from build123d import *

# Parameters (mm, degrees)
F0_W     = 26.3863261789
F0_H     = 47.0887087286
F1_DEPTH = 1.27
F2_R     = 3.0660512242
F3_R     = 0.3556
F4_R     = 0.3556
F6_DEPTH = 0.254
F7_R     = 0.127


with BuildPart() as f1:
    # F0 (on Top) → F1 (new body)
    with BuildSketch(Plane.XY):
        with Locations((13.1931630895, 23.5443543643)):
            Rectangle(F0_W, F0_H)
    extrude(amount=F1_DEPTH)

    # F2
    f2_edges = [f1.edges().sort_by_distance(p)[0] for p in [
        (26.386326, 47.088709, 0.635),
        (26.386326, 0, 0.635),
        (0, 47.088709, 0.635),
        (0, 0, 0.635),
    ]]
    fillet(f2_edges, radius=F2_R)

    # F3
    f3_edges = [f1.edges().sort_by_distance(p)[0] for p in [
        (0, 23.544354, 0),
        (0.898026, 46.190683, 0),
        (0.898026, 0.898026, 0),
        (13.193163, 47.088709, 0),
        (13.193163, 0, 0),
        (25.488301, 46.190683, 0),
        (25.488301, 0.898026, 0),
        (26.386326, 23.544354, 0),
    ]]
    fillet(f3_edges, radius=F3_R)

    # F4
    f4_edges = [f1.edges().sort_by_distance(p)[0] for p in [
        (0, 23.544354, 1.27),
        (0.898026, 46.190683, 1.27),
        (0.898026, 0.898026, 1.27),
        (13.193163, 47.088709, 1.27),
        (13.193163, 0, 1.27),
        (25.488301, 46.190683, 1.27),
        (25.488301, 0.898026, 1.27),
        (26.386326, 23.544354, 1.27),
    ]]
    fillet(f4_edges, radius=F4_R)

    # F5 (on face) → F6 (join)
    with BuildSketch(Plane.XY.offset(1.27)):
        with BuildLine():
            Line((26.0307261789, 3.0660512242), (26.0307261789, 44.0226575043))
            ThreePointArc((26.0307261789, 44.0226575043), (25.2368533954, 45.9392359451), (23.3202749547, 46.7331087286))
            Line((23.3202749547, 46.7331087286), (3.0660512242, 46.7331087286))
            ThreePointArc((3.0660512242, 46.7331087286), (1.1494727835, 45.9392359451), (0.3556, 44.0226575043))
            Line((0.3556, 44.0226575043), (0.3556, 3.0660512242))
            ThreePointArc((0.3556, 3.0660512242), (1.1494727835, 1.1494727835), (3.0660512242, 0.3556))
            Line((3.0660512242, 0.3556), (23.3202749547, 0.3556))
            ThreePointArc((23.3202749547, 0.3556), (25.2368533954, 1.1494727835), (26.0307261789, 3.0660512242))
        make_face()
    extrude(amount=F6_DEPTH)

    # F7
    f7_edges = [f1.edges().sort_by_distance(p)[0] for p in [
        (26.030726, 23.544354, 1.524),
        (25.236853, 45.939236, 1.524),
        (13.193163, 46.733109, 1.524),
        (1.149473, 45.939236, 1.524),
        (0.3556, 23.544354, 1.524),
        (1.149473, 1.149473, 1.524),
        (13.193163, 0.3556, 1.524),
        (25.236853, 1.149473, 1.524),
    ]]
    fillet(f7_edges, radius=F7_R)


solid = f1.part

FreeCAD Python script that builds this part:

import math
import FreeCAD as App
import Part
import Sketcher

V = App.Vector
Q = App.Units.Quantity


def edges_at(feature, points):
    """Names of the edges that pass closest to the given points."""
    edges = feature.Shape.Edges
    near = lambda p: min(range(len(edges)), key=lambda i: edges[i].distToShape(Part.Vertex(*p))[0])
    return sorted({f"Edge{near(p) + 1}" for p in points})


def add_polygon(sketch, points):
    """Adds a closed chain of lines whose ends are joined by coincident constraints."""
    first, n = sketch.GeometryCount, len(points)
    for a, b in zip(points, points[1:] + points[:1]):
        sketch.addGeometry(Part.LineSegment(App.Vector(*a, 0), App.Vector(*b, 0)), False)
    for i in range(n):
        sketch.addConstraint(Sketcher.Constraint("Coincident", first + i, 2, first + (i + 1) % n, 1))

doc = App.newDocument("Part")
body = doc.addObject("PartDesign::Body", "Body")

sketch1 = doc.addObject("Sketcher::SketchObject", "Sketch")
body.addObject(sketch1)
sketch1.AttachmentSupport = (doc.XY_Plane, [""])
sketch1.MapMode = "FlatFace"
add_polygon(sketch1, [(0, 47), (0, 0), (26, 0), (26, 47)])
sketch1.addConstraint([
    Sketcher.Constraint("Vertical", 0),
    Sketcher.Constraint("Horizontal", 1),
    Sketcher.Constraint("Vertical", 2),
    Sketcher.Constraint("Horizontal", 3),
    Sketcher.Constraint("Coincident", 0, 2, -1, 1),
    Sketcher.Constraint("DistanceY", 0, 2, 0, 1, Q("47.088709 mm")),
    Sketcher.Constraint("DistanceX", 1, 1, 1, 2, Q("26.386326 mm")),
])
pad1 = doc.addObject("PartDesign::Pad", "Pad")
body.addObject(pad1)
pad1.Profile = sketch1
pad1.Length = Q("0.05 in")
doc.recompute()

fillet = doc.addObject("PartDesign::Fillet", "Fillet")
body.addObject(fillet)
fillet.Base = (pad1, edges_at(pad1, [
    (26.386, 47.089, 0.635),
    (26.386, 0, 0.635),
    (0, 47.089, 0.635),
    (0, 0, 0.635),
]))
fillet.Radius = 3.066051
doc.recompute()

fillet2 = doc.addObject("PartDesign::Fillet", "Fillet001")
body.addObject(fillet2)
fillet2.Base = (fillet, edges_at(fillet, [
    (0, 23.544, 0),
    (0.898, 46.191, 0),
    (0.898, 0.898, 0),
    (13.193, 47.089, 0),
    (13.193, 0, 0),
    (25.488, 46.191, 0),
    (25.488, 0.898, 0),
    (26.386, 23.544, 0),
]))
fillet2.Radius = Q("0.014 in")
doc.recompute()

fillet3 = doc.addObject("PartDesign::Fillet", "Fillet002")
body.addObject(fillet3)
fillet3.Base = (fillet2, edges_at(fillet2, [
    (0, 23.544, 1.27),
    (0.898, 46.191, 1.27),
    (0.898, 0.898, 1.27),
    (13.193, 47.089, 1.27),
    (13.193, 0, 1.27),
    (25.488, 46.191, 1.27),
    (25.488, 0.898, 1.27),
    (26.386, 23.544, 1.27),
]))
fillet3.Radius = Q("0.014 in")

sketch2 = doc.addObject("Sketcher::SketchObject", "Sketch001")
body.addObject(sketch2)
sketch2.AttachmentSupport = (doc.XY_Plane, [""])
sketch2.MapMode = "FlatFace"
sketch2.AttachmentOffset = App.Placement(V(0, 0, 0.05 * 25.4), App.Rotation())
sketch2.addGeometry([
    Part.LineSegment(V(26, 3.1, 0), V(26, 44, 0)),
    Part.ArcOfCircle(Part.Circle(V(23.3, 44, 0), V(0, 0, 1), 2.7), math.radians(0), math.radians(90)),
    Part.LineSegment(V(23.3, 46.7, 0), V(3.1, 46.7, 0)),
    Part.ArcOfCircle(Part.Circle(V(3.1, 44, 0), V(0, 0, 1), 2.7), math.radians(90), math.radians(180)),
    Part.LineSegment(V(0.4, 44, 0), V(0.4, 3.1, 0)),
    Part.ArcOfCircle(Part.Circle(V(3.1, 3.1, 0), V(0, 0, 1), 2.7), math.radians(180), math.radians(270)),
    Part.LineSegment(V(3.1, 0.4, 0), V(23.3, 0.4, 0)),
    Part.ArcOfCircle(Part.Circle(V(23.3, 3.1, 0), V(0, 0, 1), 2.7), math.radians(-90), math.radians(0)),
], False)
sketch2.addConstraint([
    Sketcher.Constraint("Tangent", 0, 2, 1, 1),
    Sketcher.Constraint("Tangent", 1, 2, 2, 1),
    Sketcher.Constraint("Tangent", 2, 2, 3, 1),
    Sketcher.Constraint("Tangent", 3, 2, 4, 1),
    Sketcher.Constraint("Tangent", 4, 2, 5, 1),
    Sketcher.Constraint("Tangent", 5, 2, 6, 1),
    Sketcher.Constraint("Tangent", 6, 2, 7, 1),
    Sketcher.Constraint("Tangent", 7, 2, 0, 1),
    Sketcher.Constraint("Vertical", 0),
    Sketcher.Constraint("Horizontal", 2),
    Sketcher.Constraint("Vertical", 4),
    Sketcher.Constraint("Horizontal", 6),
    Sketcher.Constraint("Equal", 1, 3),
    Sketcher.Constraint("Equal", 3, 5),
    Sketcher.Constraint("Equal", 5, 7),
    Sketcher.Constraint("DistanceX", -1, 1, 3, 2, Q("0.014 in")),
    Sketcher.Constraint("DistanceY", -1, 1, 5, 2, Q("0.014 in")),
    Sketcher.Constraint("Radius", 1, Q("2.710451 mm")),
    Sketcher.Constraint("DistanceX", 2, 2, 2, 1, Q("20.254224 mm")),
    Sketcher.Constraint("DistanceY", 0, 1, 0, 2, Q("40.956606 mm")),
])
pad2 = doc.addObject("PartDesign::Pad", "Pad001")
body.addObject(pad2)
pad2.Profile = sketch2
pad2.Length = Q("0.01 in")
doc.recompute()

fillet4 = doc.addObject("PartDesign::Fillet", "Fillet003")
body.addObject(fillet4)
fillet4.Base = (pad2, edges_at(pad2, [
    (26.031, 23.544, 1.524),
    (25.237, 45.939, 1.524),
    (13.193, 46.733, 1.524),
    (1.149, 45.939, 1.524),
    (0.356, 23.544, 1.524),
    (1.149, 1.149, 1.524),
    (13.193, 0.356, 1.524),
    (25.237, 1.149, 1.524),
]))
fillet4.Radius = Q("0.005 in")

doc.recompute()
